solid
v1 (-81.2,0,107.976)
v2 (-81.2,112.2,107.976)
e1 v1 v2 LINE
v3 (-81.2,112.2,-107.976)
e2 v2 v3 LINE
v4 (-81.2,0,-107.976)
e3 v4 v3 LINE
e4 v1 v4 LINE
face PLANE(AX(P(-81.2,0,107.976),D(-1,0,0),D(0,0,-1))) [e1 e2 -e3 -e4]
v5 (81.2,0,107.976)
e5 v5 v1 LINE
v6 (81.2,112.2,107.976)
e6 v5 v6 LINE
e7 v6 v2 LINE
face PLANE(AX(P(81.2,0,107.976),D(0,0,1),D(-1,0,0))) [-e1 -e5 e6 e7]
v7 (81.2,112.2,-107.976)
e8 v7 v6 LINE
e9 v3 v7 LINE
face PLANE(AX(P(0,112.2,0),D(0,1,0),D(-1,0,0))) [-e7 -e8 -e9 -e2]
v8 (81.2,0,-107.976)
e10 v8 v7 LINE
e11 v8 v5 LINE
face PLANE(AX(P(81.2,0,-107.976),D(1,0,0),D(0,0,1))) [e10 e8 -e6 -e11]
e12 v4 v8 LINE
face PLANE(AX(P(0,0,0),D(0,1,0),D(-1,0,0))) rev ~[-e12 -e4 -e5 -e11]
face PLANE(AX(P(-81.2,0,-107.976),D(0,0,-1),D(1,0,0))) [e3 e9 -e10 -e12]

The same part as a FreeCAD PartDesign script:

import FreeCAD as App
import Part
import Sketcher
from FreeCAD import Vector
Q = App.Units.Quantity


def add_polygon(sketch, points):
    """Adds a closed chain of lines whose ends are joined by coincident constraints."""
    first, n = sketch.GeometryCount, len(points)
    for a, b in zip(points, points[1:] + points[:1]):
        sketch.addGeometry(Part.LineSegment(App.Vector(*a, 0), App.Vector(*b, 0)), False)
    for i in range(n):
        sketch.addConstraint(Sketcher.Constraint("Coincident", first + i, 2, first + (i + 1) % n, 1))

doc = App.newDocument("Part")
body = doc.addObject("PartDesign::Body", "Body")

sketch1 = body.newObject("Sketcher::SketchObject", "Sketch")
sketch1.AttachmentSupport = (doc.getObject("XZ_Plane"), [""])
sketch1.MapMode = "FlatFace"
add_polygon(sketch1, [(-81.2, 107.976), (81.2, 107.976), (81.2, -107.976), (-81.2, -107.976)])
sketch1.addConstraint(Sketcher.Constraint("Horizontal", 0))
sketch1.addConstraint(Sketcher.Constraint("Vertical", 1))
sketch1.addConstraint(Sketcher.Constraint("Horizontal", 2))
sketch1.addConstraint(Sketcher.Constraint("Vertical", 3))
sketch1.addConstraint(Sketcher.Constraint("Symmetric", 0, 2, 2, 2, -1, 1))
sketch1.addConstraint(Sketcher.Constraint("DistanceX", 0, 1, 0, 2, Q("162.4 mm")))
sketch1.addConstraint(Sketcher.Constraint("DistanceY", 1, 2, 1, 1, Q("215.952 mm")))
pad1 = body.newObject("PartDesign::Pad", "Pad")
pad1.Profile = sketch1
pad1.Length = 112.2
pad1.Reversed = True

doc.recompute()
